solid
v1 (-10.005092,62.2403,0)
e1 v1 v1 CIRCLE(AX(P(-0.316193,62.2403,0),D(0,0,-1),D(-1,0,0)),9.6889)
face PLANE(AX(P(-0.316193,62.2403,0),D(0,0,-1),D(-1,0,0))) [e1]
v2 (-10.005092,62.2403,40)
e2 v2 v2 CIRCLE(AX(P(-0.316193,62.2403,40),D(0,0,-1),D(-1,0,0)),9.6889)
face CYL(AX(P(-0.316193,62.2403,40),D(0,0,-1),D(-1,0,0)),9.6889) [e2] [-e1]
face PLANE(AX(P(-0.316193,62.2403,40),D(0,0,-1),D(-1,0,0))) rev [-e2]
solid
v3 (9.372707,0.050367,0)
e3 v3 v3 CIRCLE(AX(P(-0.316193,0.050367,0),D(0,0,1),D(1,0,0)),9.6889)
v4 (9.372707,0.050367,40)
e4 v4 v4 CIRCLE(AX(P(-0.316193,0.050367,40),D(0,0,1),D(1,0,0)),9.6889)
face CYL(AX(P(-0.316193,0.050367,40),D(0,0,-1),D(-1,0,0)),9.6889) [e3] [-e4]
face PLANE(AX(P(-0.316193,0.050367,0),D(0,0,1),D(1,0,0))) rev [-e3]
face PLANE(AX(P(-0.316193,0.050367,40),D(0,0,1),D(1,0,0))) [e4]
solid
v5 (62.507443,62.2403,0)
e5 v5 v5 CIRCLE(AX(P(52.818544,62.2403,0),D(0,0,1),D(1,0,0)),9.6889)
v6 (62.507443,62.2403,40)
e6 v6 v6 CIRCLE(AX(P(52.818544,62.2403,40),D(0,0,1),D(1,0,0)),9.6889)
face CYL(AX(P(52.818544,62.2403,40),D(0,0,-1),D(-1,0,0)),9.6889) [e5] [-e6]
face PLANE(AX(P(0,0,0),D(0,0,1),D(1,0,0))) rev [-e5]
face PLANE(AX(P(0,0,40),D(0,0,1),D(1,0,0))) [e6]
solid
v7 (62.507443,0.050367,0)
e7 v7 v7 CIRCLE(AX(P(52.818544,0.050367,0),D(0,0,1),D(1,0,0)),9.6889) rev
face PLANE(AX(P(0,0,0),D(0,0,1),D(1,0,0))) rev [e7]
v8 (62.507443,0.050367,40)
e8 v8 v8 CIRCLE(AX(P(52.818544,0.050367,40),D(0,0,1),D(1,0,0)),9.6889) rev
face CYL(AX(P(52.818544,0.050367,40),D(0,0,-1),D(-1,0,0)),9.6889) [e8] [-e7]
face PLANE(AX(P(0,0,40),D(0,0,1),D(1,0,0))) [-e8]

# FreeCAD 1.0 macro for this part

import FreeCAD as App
import Part
import Sketcher
Q = App.Units.Quantity

doc = App.newDocument("Part")
body = doc.addObject("PartDesign::Body", "Body")

sketch1 = body.newObject("Sketcher::SketchObject", "Sketch")
sketch1.AttachmentSupport = (doc.getObject("XY_Plane"), [""])
sketch1.MapMode = "FlatFace"
sketch1.addGeometry(Part.Circle(App.Vector(53, 62, 0), App.Vector(0, 0, 1), 10), False)
sketch1.addConstraint(Sketcher.Constraint("Diameter", 0, Q("19.377799 mm")))
sketch1.addConstraint(Sketcher.Constraint("DistanceY", -1, 1, 0, 3, Q("62.2403 mm")))
sketch1.addConstraint(Sketcher.Constraint("DistanceX", -1, 1, 0, 3, Q("52.818544 mm")))
pad1 = body.newObject("PartDesign::Pad", "Pad")
pad1.Profile = sketch1
pad1.Length = 40
body2 = doc.addObject("PartDesign::Body", "Body001")

sketch2 = body2.newObject("Sketcher::SketchObject", "Sketch001")
sketch2.AttachmentSupport = (doc.getObject("XY_Plane001"), [""])
sketch2.MapMode = "FlatFace"
sketch2.addGeometry(Part.Circle(App.Vector(53, 0, 0), App.Vector(0, 0, 1), 10), False)
sketch2.addConstraint(Sketcher.Constraint("Diameter", 0, Q("19.377799 mm")))
sketch2.addConstraint(Sketcher.Constraint("DistanceX", -1, 1, 0, 3, Q("52.818544 mm")))
sketch2.addConstraint(Sketcher.Constraint("DistanceY", -1, 1, 0, 3, Q("0.050367 mm")))
pad2 = body2.newObject("PartDesign::Pad", "Pad001")
pad2.Profile = sketch2
pad2.Length = 40
body3 = doc.addObject("PartDesign::Body", "Body002")

sketch3 = body3.newObject("Sketcher::SketchObject", "Sketch002")
sketch3.AttachmentSupport = (doc.getObject("XY_Plane002"), [""])
sketch3.MapMode = "FlatFace"
sketch3.addGeometry(Part.Circle(App.Vector(0, 62, 0), App.Vector(0, 0, 1), 10), False)
sketch3.addConstraint(Sketcher.Constraint("Diameter", 0, Q("19.377799 mm")))
sketch3.addConstraint(Sketcher.Constraint("DistanceY", -1, 1, 0, 3, Q("62.2403 mm")))
sketch3.addConstraint(Sketcher.Constraint("DistanceX", 0, 3, -1, 1, Q("0.316193 mm")))
pad3 = body3.newObject("PartDesign::Pad", "Pad002")
pad3.Profile = sketch3
pad3.Length = 40
body4 = doc.addObject("PartDesign::Body", "Body003")

sketch4 = body4.newObject("Sketcher::SketchObject", "Sketch003")
sketch4.AttachmentSupport = (doc.getObject("XY_Plane003"), [""])
sketch4.MapMode = "FlatFace"
sketch4.addGeometry(Part.Circle(App.Vector(0, 0, 0), App.Vector(0, 0, 1), 10), False)
sketch4.addConstraint(Sketcher.Constraint("Diameter", 0, Q("19.377799 mm")))
sketch4.addConstraint(Sketcher.Constraint("DistanceX", 0, 3, -1, 1, Q("0.316193 mm")))
sketch4.addConstraint(Sketcher.Constraint("DistanceY", -1, 1, 0, 3, Q("0.050367 mm")))
pad4 = body4.newObject("PartDesign::Pad", "Pad003")
pad4.Profile = sketch4
pad4.Length = 40

doc.recompute()
